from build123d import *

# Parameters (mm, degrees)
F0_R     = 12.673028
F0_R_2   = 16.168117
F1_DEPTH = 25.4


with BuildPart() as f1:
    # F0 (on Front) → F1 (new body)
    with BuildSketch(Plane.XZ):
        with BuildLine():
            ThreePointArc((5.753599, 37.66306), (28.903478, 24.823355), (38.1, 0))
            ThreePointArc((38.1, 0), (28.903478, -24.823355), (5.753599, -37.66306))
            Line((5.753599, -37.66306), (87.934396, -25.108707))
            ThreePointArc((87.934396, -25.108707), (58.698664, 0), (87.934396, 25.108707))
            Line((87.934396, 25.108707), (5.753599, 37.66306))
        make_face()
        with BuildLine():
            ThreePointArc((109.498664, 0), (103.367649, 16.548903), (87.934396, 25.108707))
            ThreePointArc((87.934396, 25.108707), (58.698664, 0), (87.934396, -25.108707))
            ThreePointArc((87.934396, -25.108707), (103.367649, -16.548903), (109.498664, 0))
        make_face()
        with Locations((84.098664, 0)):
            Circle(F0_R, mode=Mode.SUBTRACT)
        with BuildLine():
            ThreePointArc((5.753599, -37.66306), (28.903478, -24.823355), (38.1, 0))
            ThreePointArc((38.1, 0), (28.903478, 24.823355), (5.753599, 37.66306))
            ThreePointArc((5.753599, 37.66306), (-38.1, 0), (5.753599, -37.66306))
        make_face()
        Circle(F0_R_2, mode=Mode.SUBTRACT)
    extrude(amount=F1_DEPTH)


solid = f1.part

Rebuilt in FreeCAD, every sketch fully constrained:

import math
import FreeCAD as App
import Part
import Sketcher
Q = App.Units.Quantity

doc = App.newDocument("Part")
params = doc.addObject("Spreadsheet::Sheet", "Params")
for row, (alias, value) in enumerate([
    ("sketch1_radius", "1.0000001 in"),
    ("sketch1_radius2", "1.5 in"),
    ("sketch1_length", "3.273 in"),
    ("pad1_length", "1 in"),
], start=1):
    params.set(f"A{row}", alias)
    params.set(f"B{row}", "=" + value)
    params.setAlias(f"B{row}", alias)

body = doc.addObject("PartDesign::Body", "Body")

sketch1 = body.newObject("Sketcher::SketchObject", "Sketch")
sketch1.AttachmentSupport = (doc.getObject("XZ_Plane"), [""])
sketch1.MapMode = "FlatFace"
sketch1.addGeometry(Part.LineSegment(App.Vector(88, 25, 0), App.Vector(6, 38, 0)), False)
sketch1.addGeometry(Part.ArcOfCircle(Part.Circle(App.Vector(0, 0, 0), App.Vector(0, 0, 1), 38), math.radians(81), math.radians(279)), False)
sketch1.addGeometry(Part.LineSegment(App.Vector(6, -38, 0), App.Vector(88, -25, 0)), False)
sketch1.addGeometry(Part.ArcOfCircle(Part.Circle(App.Vector(84, 0, 0), App.Vector(0, 0, 1), 25), math.radians(-81), math.radians(0)), False)
sketch1.addGeometry(Part.ArcOfCircle(Part.Circle(App.Vector(84, 0, 0), App.Vector(0, 0, 1), 25), math.radians(0), math.radians(81)), False)
sketch1.addGeometry(Part.Circle(App.Vector(0, 0, 0), App.Vector(0, 0, 1), 16), False)
sketch1.addGeometry(Part.Circle(App.Vector(84, 0, 0), App.Vector(0, 0, 1), 13), False)
sketch1.addConstraint(Sketcher.Constraint("Tangent", 0, 2, 1, 1))
sketch1.addConstraint(Sketcher.Constraint("Tangent", 1, 2, 2, 1))
sketch1.addConstraint(Sketcher.Constraint("Tangent", 2, 2, 3, 1))
sketch1.addConstraint(Sketcher.Constraint("Tangent", 3, 2, 4, 1))
sketch1.addConstraint(Sketcher.Constraint("Tangent", 4, 2, 0, 1))
sketch1.addConstraint(Sketcher.Constraint("Coincident", 1, 3, -1, 1))
sketch1.addConstraint(Sketcher.Constraint("Coincident", 5, 3, -1, 1))
sketch1.addConstraint(Sketcher.Constraint("Coincident", 6, 3, 3, 3))
sketch1.addConstraint(Sketcher.Constraint("Equal", 3, 4))
sketch1.addConstraint(Sketcher.Constraint("PointOnObject", 3, 3, -1))
sketch1.addConstraint(Sketcher.Constraint("PointOnObject", 3, 2, -1))
sketch1.addConstraint(Sketcher.Constraint("Radius", 3, Q("1.0000001 in")))
sketch1.addConstraint(Sketcher.Constraint("Radius", 1, Q("1.5 in")))
sketch1.addConstraint(Sketcher.Constraint("Distance", 0, Q("3.273 in")))
sketch1.addConstraint(Sketcher.Constraint("Diameter", 5, 32.336234))
sketch1.addConstraint(Sketcher.Constraint("Diameter", 6, 25.346056))
sketch1.setExpression("Constraints[11]", "Params.sketch1_radius")
sketch1.setExpression("Constraints[12]", "Params.sketch1_radius2")
sketch1.setExpression("Constraints[13]", "Params.sketch1_length")
pad1 = body.newObject("PartDesign::Pad", "Pad")
pad1.Profile = sketch1
pad1.setExpression("Length", "Params.pad1_length")

doc.recompute()
